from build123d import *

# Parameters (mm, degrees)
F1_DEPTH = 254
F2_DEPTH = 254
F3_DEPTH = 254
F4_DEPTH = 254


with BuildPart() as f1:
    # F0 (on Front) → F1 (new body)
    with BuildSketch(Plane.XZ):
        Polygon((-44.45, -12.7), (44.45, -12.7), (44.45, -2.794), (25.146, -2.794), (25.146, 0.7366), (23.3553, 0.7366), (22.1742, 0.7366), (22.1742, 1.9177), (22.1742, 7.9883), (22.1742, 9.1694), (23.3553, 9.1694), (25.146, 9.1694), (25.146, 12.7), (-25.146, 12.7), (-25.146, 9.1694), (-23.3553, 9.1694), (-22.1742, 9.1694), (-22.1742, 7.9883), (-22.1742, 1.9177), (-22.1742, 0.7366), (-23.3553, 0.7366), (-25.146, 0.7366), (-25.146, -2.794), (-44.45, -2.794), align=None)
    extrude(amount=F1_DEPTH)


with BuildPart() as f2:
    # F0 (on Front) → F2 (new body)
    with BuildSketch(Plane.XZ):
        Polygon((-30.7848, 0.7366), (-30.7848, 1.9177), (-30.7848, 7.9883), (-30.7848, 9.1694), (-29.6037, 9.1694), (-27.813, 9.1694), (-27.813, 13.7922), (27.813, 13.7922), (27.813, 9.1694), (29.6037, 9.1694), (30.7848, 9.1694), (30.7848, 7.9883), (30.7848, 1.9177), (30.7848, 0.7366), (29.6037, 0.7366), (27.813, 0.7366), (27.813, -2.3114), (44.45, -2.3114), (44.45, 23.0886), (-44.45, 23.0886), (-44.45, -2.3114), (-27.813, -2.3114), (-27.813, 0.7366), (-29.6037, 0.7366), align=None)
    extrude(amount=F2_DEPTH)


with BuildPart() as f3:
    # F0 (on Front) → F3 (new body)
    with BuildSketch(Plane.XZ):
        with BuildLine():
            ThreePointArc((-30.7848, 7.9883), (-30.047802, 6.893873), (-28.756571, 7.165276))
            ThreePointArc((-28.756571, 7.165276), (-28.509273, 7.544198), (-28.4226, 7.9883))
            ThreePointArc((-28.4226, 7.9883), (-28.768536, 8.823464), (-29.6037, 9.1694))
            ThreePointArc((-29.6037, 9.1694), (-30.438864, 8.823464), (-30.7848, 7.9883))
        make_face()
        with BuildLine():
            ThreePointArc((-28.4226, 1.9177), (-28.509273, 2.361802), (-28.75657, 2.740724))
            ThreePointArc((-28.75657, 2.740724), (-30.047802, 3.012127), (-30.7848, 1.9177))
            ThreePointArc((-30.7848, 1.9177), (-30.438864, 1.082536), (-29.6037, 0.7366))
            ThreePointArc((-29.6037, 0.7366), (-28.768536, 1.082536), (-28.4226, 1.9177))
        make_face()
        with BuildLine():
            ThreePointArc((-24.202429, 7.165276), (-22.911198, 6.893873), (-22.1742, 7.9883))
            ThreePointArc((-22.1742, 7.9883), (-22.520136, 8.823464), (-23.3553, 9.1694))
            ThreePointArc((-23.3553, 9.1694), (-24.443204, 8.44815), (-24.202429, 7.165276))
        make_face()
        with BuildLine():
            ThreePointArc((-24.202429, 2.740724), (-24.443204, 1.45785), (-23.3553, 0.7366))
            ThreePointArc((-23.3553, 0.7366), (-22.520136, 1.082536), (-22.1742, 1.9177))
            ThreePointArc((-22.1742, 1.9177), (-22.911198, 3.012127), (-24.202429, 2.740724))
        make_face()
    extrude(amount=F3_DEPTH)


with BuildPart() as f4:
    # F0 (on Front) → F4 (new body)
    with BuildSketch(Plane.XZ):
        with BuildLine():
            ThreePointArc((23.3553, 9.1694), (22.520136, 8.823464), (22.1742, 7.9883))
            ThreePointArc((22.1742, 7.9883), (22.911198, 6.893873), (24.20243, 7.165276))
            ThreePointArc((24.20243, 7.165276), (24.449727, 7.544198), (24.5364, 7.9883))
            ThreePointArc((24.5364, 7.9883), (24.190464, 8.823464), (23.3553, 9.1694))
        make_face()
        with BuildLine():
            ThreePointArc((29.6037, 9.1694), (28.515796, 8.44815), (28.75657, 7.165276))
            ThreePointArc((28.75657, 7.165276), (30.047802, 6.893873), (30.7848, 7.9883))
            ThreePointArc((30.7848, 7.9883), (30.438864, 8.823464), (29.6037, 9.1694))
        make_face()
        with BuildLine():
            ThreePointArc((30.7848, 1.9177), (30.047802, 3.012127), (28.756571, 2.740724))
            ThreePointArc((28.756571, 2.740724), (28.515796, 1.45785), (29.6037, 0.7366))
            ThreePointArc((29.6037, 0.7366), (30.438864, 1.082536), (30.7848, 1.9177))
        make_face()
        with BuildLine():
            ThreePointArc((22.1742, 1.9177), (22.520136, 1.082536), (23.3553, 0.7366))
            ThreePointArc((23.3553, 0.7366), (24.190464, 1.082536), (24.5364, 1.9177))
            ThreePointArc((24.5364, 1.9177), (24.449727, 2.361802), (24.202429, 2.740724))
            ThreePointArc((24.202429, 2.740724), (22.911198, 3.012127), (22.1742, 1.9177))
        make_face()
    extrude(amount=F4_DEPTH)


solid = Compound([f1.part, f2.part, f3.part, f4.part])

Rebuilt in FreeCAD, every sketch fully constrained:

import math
import FreeCAD as App
import Part
import Sketcher

V = App.Vector
Q = App.Units.Quantity

doc = App.newDocument("Part")
body = doc.addObject("PartDesign::Body", "Body")

sketch1 = doc.addObject("Sketcher::SketchObject", "Sketch")
body.addObject(sketch1)
sketch1.AttachmentSupport = (doc.XZ_Plane, [""])
sketch1.MapMode = "FlatFace"
sketch1.addGeometry(Part.LineSegment(V(-44.5, -12.7, 0), V(44.5, -12.7, 0)), False)
sketch1.addGeometry(Part.LineSegment(V(44.5, -12.7, 0), V(44.5, -2.8, 0)), False)
sketch1.addGeometry(Part.LineSegment(V(44.5, -2.8, 0), V(25.1, -2.8, 0)), False)
sketch1.addGeometry(Part.LineSegment(V(25.1, -2.8, 0), V(25.1, 0.7, 0)), False)
sketch1.addGeometry(Part.LineSegment(V(25.1, 0.7, 0), V(22.2, 0.7, 0)), False)
sketch1.addGeometry(Part.LineSegment(V(22.2, 0.7, 0), V(22.2, 9.2, 0)), False)
sketch1.addGeometry(Part.LineSegment(V(22.2, 9.2, 0), V(25.1, 9.2, 0)), False)
sketch1.addGeometry(Part.LineSegment(V(25.1, 9.2, 0), V(25.1, 12.7, 0)), False)
sketch1.addGeometry(Part.LineSegment(V(25.1, 12.7, 0), V(-25.1, 12.7, 0)), False)
sketch1.addGeometry(Part.LineSegment(V(-25.1, 12.7, 0), V(-25.1, 9.2, 0)), False)
sketch1.addGeometry(Part.LineSegment(V(-25.1, 9.2, 0), V(-22.2, 9.2, 0)), False)
sketch1.addGeometry(Part.LineSegment(V(-22.2, 9.2, 0), V(-22.2, 0.7, 0)), False)
sketch1.addGeometry(Part.LineSegment(V(-22.2, 0.7, 0), V(-25.1, 0.7, 0)), False)
sketch1.addGeometry(Part.LineSegment(V(-25.1, 0.7, 0), V(-25.1, -2.8, 0)), False)
sketch1.addGeometry(Part.LineSegment(V(-25.1, -2.8, 0), V(-44.5, -2.8, 0)), False)
sketch1.addGeometry(Part.LineSegment(V(-44.5, -2.8, 0), V(-44.5, -12.7, 0)), False)
sketch1.addConstraint(Sketcher.Constraint("Coincident", 0, 2, 1, 1))
sketch1.addConstraint(Sketcher.Constraint("Coincident", 1, 2, 2, 1))
sketch1.addConstraint(Sketcher.Constraint("Coincident", 2, 2, 3, 1))
sketch1.addConstraint(Sketcher.Constraint("Coincident", 3, 2, 4, 1))
sketch1.addConstraint(Sketcher.Constraint("Coincident", 4, 2, 5, 1))
sketch1.addConstraint(Sketcher.Constraint("Coincident", 5, 2, 6, 1))
sketch1.addConstraint(Sketcher.Constraint("Coincident", 6, 2, 7, 1))
sketch1.addConstraint(Sketcher.Constraint("Coincident", 7, 2, 8, 1))
sketch1.addConstraint(Sketcher.Constraint("Coincident", 8, 2, 9, 1))
sketch1.addConstraint(Sketcher.Constraint("Coincident", 9, 2, 10, 1))
sketch1.addConstraint(Sketcher.Constraint("Coincident", 10, 2, 11, 1))
sketch1.addConstraint(Sketcher.Constraint("Coincident", 11, 2, 12, 1))
sketch1.addConstraint(Sketcher.Constraint("Coincident", 12, 2, 13, 1))
sketch1.addConstraint(Sketcher.Constraint("Coincident", 13, 2, 14, 1))
sketch1.addConstraint(Sketcher.Constraint("Coincident", 14, 2, 15, 1))
sketch1.addConstraint(Sketcher.Constraint("Coincident", 15, 2, 0, 1))
sketch1.addConstraint(Sketcher.Constraint("Horizontal", 0))
sketch1.addConstraint(Sketcher.Constraint("Vertical", 1))
sketch1.addConstraint(Sketcher.Constraint("Horizontal", 2))
sketch1.addConstraint(Sketcher.Constraint("Vertical", 3))
sketch1.addConstraint(Sketcher.Constraint("Horizontal", 4))
sketch1.addConstraint(Sketcher.Constraint("Vertical", 5))
sketch1.addConstraint(Sketcher.Constraint("Horizontal", 6))
sketch1.addConstraint(Sketcher.Constraint("Vertical", 7))
sketch1.addConstraint(Sketcher.Constraint("Horizontal", 8))
sketch1.addConstraint(Sketcher.Constraint("Vertical", 9))
sketch1.addConstraint(Sketcher.Constraint("Horizontal", 10))
sketch1.addConstraint(Sketcher.Constraint("Vertical", 11))
sketch1.addConstraint(Sketcher.Constraint("Horizontal", 12))
sketch1.addConstraint(Sketcher.Constraint("Vertical", 13))
sketch1.addConstraint(Sketcher.Constraint("Horizontal", 14))
sketch1.addConstraint(Sketcher.Constraint("Vertical", 15))
sketch1.addConstraint(Sketcher.Constraint("Symmetric", 6, 2, 9, 2, -2))
sketch1.addConstraint(Sketcher.Constraint("Symmetric", 4, 2, 11, 2, -2))
sketch1.addConstraint(Sketcher.Constraint("Symmetric", 2, 2, 13, 2, -2))
sketch1.addConstraint(Sketcher.Constraint("Vertical", 3, 2, 6, 2))
sketch1.addConstraint(Sketcher.Constraint("Equal", 2, 14))
sketch1.addConstraint(Sketcher.Constraint("Equal", 3, 7))
sketch1.addConstraint(Sketcher.Constraint("DistanceX", 0, 1, 0, 2, Q("3.5 in")))
sketch1.addConstraint(Sketcher.Constraint("DistanceX", 2, 2, 2, 1, Q("0.76 in")))
sketch1.addConstraint(Sketcher.Constraint("DistanceY", 1, 1, 1, 2, Q("0.39 in")))
sketch1.addConstraint(Sketcher.Constraint("DistanceY", 0, 2, -1, 1, Q("0.5 in")))
sketch1.addConstraint(Sketcher.Constraint("DistanceY", -1, 1, 7, 2, Q("0.5 in")))
sketch1.addConstraint(Sketcher.Constraint("DistanceX", 4, 2, 4, 1, Q("0.117 in")))
sketch1.addConstraint(Sketcher.Constraint("DistanceY", 3, 1, 3, 2, Q("0.139 in")))
pad1 = doc.addObject("PartDesign::Pad", "Pad")
body.addObject(pad1)
pad1.Profile = sketch1
pad1.Length = Q("10 in")
body2 = doc.addObject("PartDesign::Body", "Body001")

sketch2 = doc.addObject("Sketcher::SketchObject", "Sketch001")
body2.addObject(sketch2)
sketch2.AttachmentSupport = (doc.getObject("XZ_Plane001"), [""])
sketch2.MapMode = "FlatFace"
sketch2.addGeometry(Part.LineSegment(V(-30.8, 0.7, 0), V(-30.8, 9.2, 0)), False)
sketch2.addGeometry(Part.LineSegment(V(-30.8, 9.2, 0), V(-27.8, 9.2, 0)), False)
sketch2.addGeometry(Part.LineSegment(V(-27.8, 9.2, 0), V(-27.8, 13.8, 0)), False)
sketch2.addGeometry(Part.LineSegment(V(-27.8, 13.8, 0), V(27.8, 13.8, 0)), False)
sketch2.addGeometry(Part.LineSegment(V(27.8, 13.8, 0), V(27.8, 9.2, 0)), False)
sketch2.addGeometry(Part.LineSegment(V(27.8, 9.2, 0), V(30.8, 9.2, 0)), False)
sketch2.addGeometry(Part.LineSegment(V(30.8, 9.2, 0), V(30.8, 0.7, 0)), False)
sketch2.addGeometry(Part.LineSegment(V(30.8, 0.7, 0), V(27.8, 0.7, 0)), False)
sketch2.addGeometry(Part.LineSegment(V(27.8, 0.7, 0), V(27.8, -2.3, 0)), False)
sketch2.addGeometry(Part.LineSegment(V(27.8, -2.3, 0), V(44.5, -2.3, 0)), False)
sketch2.addGeometry(Part.LineSegment(V(44.5, -2.3, 0), V(44.5, 23.1, 0)), False)
sketch2.addGeometry(Part.LineSegment(V(44.5, 23.1, 0), V(-44.5, 23.1, 0)), False)
sketch2.addGeometry(Part.LineSegment(V(-44.5, 23.1, 0), V(-44.5, -2.3, 0)), False)
sketch2.addGeometry(Part.LineSegment(V(-44.5, -2.3, 0), V(-27.8, -2.3, 0)), False)
sketch2.addGeometry(Part.LineSegment(V(-27.8, -2.3, 0), V(-27.8, 0.7, 0)), False)
sketch2.addGeometry(Part.LineSegment(V(-27.8, 0.7, 0), V(-30.8, 0.7, 0)), False)
sketch2.addConstraint(Sketcher.Constraint("Coincident", 0, 2, 1, 1))
sketch2.addConstraint(Sketcher.Constraint("Coincident", 1, 2, 2, 1))
sketch2.addConstraint(Sketcher.Constraint("Coincident", 2, 2, 3, 1))
sketch2.addConstraint(Sketcher.Constraint("Coincident", 3, 2, 4, 1))
sketch2.addConstraint(Sketcher.Constraint("Coincident", 4, 2, 5, 1))
sketch2.addConstraint(Sketcher.Constraint("Coincident", 5, 2, 6, 1))
sketch2.addConstraint(Sketcher.Constraint("Coincident", 6, 2, 7, 1))
sketch2.addConstraint(Sketcher.Constraint("Coincident", 7, 2, 8, 1))
sketch2.addConstraint(Sketcher.Constraint("Coincident", 8, 2, 9, 1))
sketch2.addConstraint(Sketcher.Constraint("Coincident", 9, 2, 10, 1))
sketch2.addConstraint(Sketcher.Constraint("Coincident", 10, 2, 11, 1))
sketch2.addConstraint(Sketcher.Constraint("Coincident", 11, 2, 12, 1))
sketch2.addConstraint(Sketcher.Constraint("Coincident", 12, 2, 13, 1))
sketch2.addConstraint(Sketcher.Constraint("Coincident", 13, 2, 14, 1))
sketch2.addConstraint(Sketcher.Constraint("Coincident", 14, 2, 15, 1))
sketch2.addConstraint(Sketcher.Constraint("Coincident", 15, 2, 0, 1))
sketch2.addConstraint(Sketcher.Constraint("Vertical", 0))
sketch2.addConstraint(Sketcher.Constraint("Horizontal", 1))
sketch2.addConstraint(Sketcher.Constraint("Vertical", 2))
sketch2.addConstraint(Sketcher.Constraint("Horizontal", 3))
sketch2.addConstraint(Sketcher.Constraint("Vertical", 4))
sketch2.addConstraint(Sketcher.Constraint("Horizontal", 5))
sketch2.addConstraint(Sketcher.Constraint("Vertical", 6))
sketch2.addConstraint(Sketcher.Constraint("Horizontal", 7))
sketch2.addConstraint(Sketcher.Constraint("Vertical", 8))
sketch2.addConstraint(Sketcher.Constraint("Horizontal", 9))
sketch2.addConstraint(Sketcher.Constraint("Vertical", 10))
sketch2.addConstraint(Sketcher.Constraint("Horizontal", 11))
sketch2.addConstraint(Sketcher.Constraint("Vertical", 12))
sketch2.addConstraint(Sketcher.Constraint("Horizontal", 13))
sketch2.addConstraint(Sketcher.Constraint("Vertical", 14))
sketch2.addConstraint(Sketcher.Constraint("Horizontal", 15))
sketch2.addConstraint(Sketcher.Constraint("Symmetric", 1, 2, 4, 2, -2))
sketch2.addConstraint(Sketcher.Constraint("Symmetric", 9, 2, 12, 2, -2))
sketch2.addConstraint(Sketcher.Constraint("Symmetric", 7, 2, 14, 2, -2))
sketch2.addConstraint(Sketcher.Constraint("Vertical", 4, 2, 7, 2))
sketch2.addConstraint(Sketcher.Constraint("Equal", 1, 5))
sketch2.addConstraint(Sketcher.Constraint("DistanceY", 10, 1, 10, 2, Q("1 in")))
sketch2.addConstraint(Sketcher.Constraint("DistanceX", 11, 2, 11, 1, Q("3.5 in")))
sketch2.addConstraint(Sketcher.Constraint("DistanceX", 3, 1, 3, 2, Q("2.19 in")))
sketch2.addConstraint(Sketcher.Constraint("DistanceY", 8, 2, 8, 1, Q("0.12 in")))
sketch2.addConstraint(Sketcher.Constraint("DistanceX", 1, 1, 1, 2, Q("0.117 in")))
sketch2.addConstraint(Sketcher.Constraint("DistanceY", 0, 1, 0, 2, Q("0.332 in")))
sketch2.addConstraint(Sketcher.Constraint("DistanceY", 2, 1, 2, 2, Q("0.182 in")))
sketch2.addConstraint(Sketcher.Constraint("DistanceY", -1, 1, 0, 2, Q("0.361 in")))
pad2 = doc.addObject("PartDesign::Pad", "Pad001")
body2.addObject(pad2)
pad2.Profile = sketch2
pad2.Length = Q("10 in")
body3 = doc.addObject("PartDesign::Body", "Body002")
body3.AllowCompound = True

sketch3 = doc.addObject("Sketcher::SketchObject", "Sketch002")
body3.addObject(sketch3)
sketch3.AttachmentSupport = (doc.getObject("XZ_Plane002"), [""])
sketch3.MapMode = "FlatFace"
sketch3.addGeometry(Part.ArcOfCircle(Part.Circle(V(-29.6, 8, 0), V(0, 0, 1), 1.2), math.radians(180), math.radians(316)), False)
sketch3.addGeometry(Part.ArcOfCircle(Part.Circle(V(-29.6, 8, 0), V(0, 0, 1), 1.2), math.radians(-44), math.radians(0)), False)
sketch3.addGeometry(Part.ArcOfCircle(Part.Circle(V(-29.6, 8, 0), V(0, 0, 1), 1.2), math.radians(0), math.radians(90)), False)
sketch3.addGeometry(Part.ArcOfCircle(Part.Circle(V(-29.6, 8, 0), V(0, 0, 1), 1.2), math.radians(90), math.radians(180)), False)
sketch3.addGeometry(Part.ArcOfCircle(Part.Circle(V(-29.6, 1.9, 0), V(0, 0, 1), 1.2), math.radians(0), math.radians(44)), False)
sketch3.addGeometry(Part.ArcOfCircle(Part.Circle(V(-29.6, 1.9, 0), V(0, 0, 1), 1.2), math.radians(44), math.radians(180)), False)
sketch3.addGeometry(Part.ArcOfCircle(Part.Circle(V(-29.6, 1.9, 0), V(0, 0, 1), 1.2), math.radians(180), math.radians(270)), False)
sketch3.addGeometry(Part.ArcOfCircle(Part.Circle(V(-29.6, 1.9, 0), V(0, 0, 1), 1.2), math.radians(-90), math.radians(0)), False)
sketch3.addGeometry(Part.ArcOfCircle(Part.Circle(V(-23.4, 8, 0), V(0, 0, 1), 1.2), math.radians(-136), math.radians(0)), False)
sketch3.addGeometry(Part.ArcOfCircle(Part.Circle(V(-23.4, 8, 0), V(0, 0, 1), 1.2), math.radians(0), math.radians(90)), False)
sketch3.addGeometry(Part.ArcOfCircle(Part.Circle(V(-23.4, 8, 0), V(0, 0, 1), 1.2), math.radians(90), math.radians(224)), False)
sketch3.addGeometry(Part.ArcOfCircle(Part.Circle(V(-23.4, 1.9, 0), V(0, 0, 1), 1.2), math.radians(136), math.radians(270)), False)
sketch3.addGeometry(Part.ArcOfCircle(Part.Circle(V(-23.4, 1.9, 0), V(0, 0, 1), 1.2), math.radians(-90), math.radians(0)), False)
sketch3.addGeometry(Part.ArcOfCircle(Part.Circle(V(-23.4, 1.9, 0), V(0, 0, 1), 1.2), math.radians(0), math.radians(136)), False)
sketch3.addConstraint(Sketcher.Constraint("Tangent", 0, 2, 1, 1))
sketch3.addConstraint(Sketcher.Constraint("Tangent", 1, 2, 2, 1))
sketch3.addConstraint(Sketcher.Constraint("Tangent", 2, 2, 3, 1))
sketch3.addConstraint(Sketcher.Constraint("Tangent", 3, 2, 0, 1))
sketch3.addConstraint(Sketcher.Constraint("Tangent", 4, 2, 5, 1))
sketch3.addConstraint(Sketcher.Constraint("Tangent", 5, 2, 6, 1))
sketch3.addConstraint(Sketcher.Constraint("Tangent", 6, 2, 7, 1))
sketch3.addConstraint(Sketcher.Constraint("Tangent", 7, 2, 4, 1))
sketch3.addConstraint(Sketcher.Constraint("Tangent", 8, 2, 9, 1))
sketch3.addConstraint(Sketcher.Constraint("Tangent", 9, 2, 10, 1))
sketch3.addConstraint(Sketcher.Constraint("Tangent", 10, 2, 8, 1))
sketch3.addConstraint(Sketcher.Constraint("Tangent", 11, 2, 12, 1))
sketch3.addConstraint(Sketcher.Constraint("Tangent", 12, 2, 13, 1))
sketch3.addConstraint(Sketcher.Constraint("Tangent", 13, 2, 11, 1))
sketch3.addConstraint(Sketcher.Constraint("Equal", 1, 2))
sketch3.addConstraint(Sketcher.Constraint("Equal", 3, 5))
sketch3.addConstraint(Sketcher.Constraint("Equal", 5, 6))
sketch3.addConstraint(Sketcher.Constraint("Equal", 7, 8))
sketch3.addConstraint(Sketcher.Constraint("Equal", 10, 11))
sketch3.addConstraint(Sketcher.Constraint("Horizontal", 3, 3, 8, 3))
sketch3.addConstraint(Sketcher.Constraint("Horizontal", 7, 3, 11, 3))
sketch3.addConstraint(Sketcher.Constraint("Horizontal", 10, 3, 1, 2))
sketch3.addConstraint(Sketcher.Constraint("Horizontal", 1, 2, 3, 2))
sketch3.addConstraint(Sketcher.Constraint("Horizontal", 13, 3, 5, 2))
sketch3.addConstraint(Sketcher.Constraint("Horizontal", 5, 2, 7, 2))
sketch3.addConstraint(Sketcher.Constraint("Horizontal", 3, 2, 8, 2))
sketch3.addConstraint(Sketcher.Constraint("Horizontal", 0, 2, 10, 2))
sketch3.addConstraint(Sketcher.Constraint("Horizontal", 7, 2, 12, 2))
sketch3.addConstraint(Sketcher.Constraint("Horizontal", 4, 2, 13, 2))
sketch3.addConstraint(Sketcher.Constraint("Vertical", 3, 3, 4, 3))
sketch3.addConstraint(Sketcher.Constraint("Vertical", 10, 3, 11, 3))
sketch3.addConstraint(Sketcher.Constraint("Vertical", 7, 3, 2, 2))
sketch3.addConstraint(Sketcher.Constraint("Vertical", 0, 2, 4, 2))
sketch3.addConstraint(Sketcher.Constraint("Vertical", 2, 2, 6, 2))
sketch3.addConstraint(Sketcher.Constraint("Vertical", 13, 3, 9, 2))
sketch3.addConstraint(Sketcher.Constraint("Vertical", 9, 2, 11, 2))
sketch3.addConstraint(Sketcher.Constraint("Radius", 0, Q("0.0465 in")))
sketch3.addConstraint(Sketcher.Constraint("DistanceX", 1, 2, -1, 1, Q("1.119 in")))
sketch3.addConstraint(Sketcher.Constraint("DistanceY", -1, 1, 2, 2, Q("0.361 in")))
sketch3.addConstraint(Sketcher.Constraint("DistanceY", -1, 1, 6, 2, Q("0.029 in")))
sketch3.addConstraint(Sketcher.Constraint("DistanceX", 8, 2, -1, 1, Q("0.873 in")))
sketch3.addConstraint(Sketcher.Constraint("DistanceX", 0, 2, -1, 1, Q("28.756571 mm")))
pad3 = doc.addObject("PartDesign::Pad", "Pad002")
body3.addObject(pad3)
pad3.Profile = sketch3
pad3.Length = Q("10 in")
body4 = doc.addObject("PartDesign::Body", "Body003")
body4.AllowCompound = True

sketch4 = doc.addObject("Sketcher::SketchObject", "Sketch003")
body4.addObject(sketch4)
sketch4.AttachmentSupport = (doc.getObject("XZ_Plane003"), [""])
sketch4.MapMode = "FlatFace"
sketch4.addGeometry(Part.ArcOfCircle(Part.Circle(V(23.4, 8, 0), V(0, 0, 1), 1.2), math.radians(90), math.radians(180)), False)
sketch4.addGeometry(Part.ArcOfCircle(Part.Circle(V(23.4, 8, 0), V(0, 0, 1), 1.2), math.radians(-180), math.radians(-44)), False)
sketch4.addGeometry(Part.ArcOfCircle(Part.Circle(V(23.4, 8, 0), V(0, 0, 1), 1.2), math.radians(-44), math.radians(0)), False)
sketch4.addGeometry(Part.ArcOfCircle(Part.Circle(V(23.4, 8, 0), V(0, 0, 1), 1.2), math.radians(0), math.radians(90)), False)
sketch4.addGeometry(Part.ArcOfCircle(Part.Circle(V(29.6, 8, 0), V(0, 0, 1), 1.2), math.radians(90), math.radians(224)), False)
sketch4.addGeometry(Part.ArcOfCircle(Part.Circle(V(29.6, 8, 0), V(0, 0, 1), 1.2), math.radians(-136), math.radians(0)), False)
sketch4.addGeometry(Part.ArcOfCircle(Part.Circle(V(29.6, 8, 0), V(0, 0, 1), 1.2), math.radians(0), math.radians(90)), False)
sketch4.addGeometry(Part.ArcOfCircle(Part.Circle(V(29.6, 1.9, 0), V(0, 0, 1), 1.2), math.radians(0), math.radians(136)), False)
sketch4.addGeometry(Part.ArcOfCircle(Part.Circle(V(29.6, 1.9, 0), V(0, 0, 1), 1.2), math.radians(136), math.radians(270)), False)
sketch4.addGeometry(Part.ArcOfCircle(Part.Circle(V(29.6, 1.9, 0), V(0, 0, 1), 1.2), math.radians(-90), math.radians(0)), False)
sketch4.addGeometry(Part.ArcOfCircle(Part.Circle(V(23.4, 1.9, 0), V(0, 0, 1), 1.2), math.radians(180), math.radians(270)), False)
sketch4.addGeometry(Part.ArcOfCircle(Part.Circle(V(23.4, 1.9, 0), V(0, 0, 1), 1.2), math.radians(-90), math.radians(0)), False)
sketch4.addGeometry(Part.ArcOfCircle(Part.Circle(V(23.4, 1.9, 0), V(0, 0, 1), 1.2), math.radians(0), math.radians(44)), False)
sketch4.addGeometry(Part.ArcOfCircle(Part.Circle(V(23.4, 1.9, 0), V(0, 0, 1), 1.2), math.radians(44), math.radians(180)), False)
sketch4.addConstraint(Sketcher.Constraint("Tangent", 0, 2, 1, 1))
sketch4.addConstraint(Sketcher.Constraint("Tangent", 1, 2, 2, 1))
sketch4.addConstraint(Sketcher.Constraint("Tangent", 2, 2, 3, 1))
sketch4.addConstraint(Sketcher.Constraint("Tangent", 3, 2, 0, 1))
sketch4.addConstraint(Sketcher.Constraint("Tangent", 4, 2, 5, 1))
sketch4.addConstraint(Sketcher.Constraint("Tangent", 5, 2, 6, 1))
sketch4.addConstraint(Sketcher.Constraint("Tangent", 6, 2, 4, 1))
sketch4.addConstraint(Sketcher.Constraint("Tangent", 7, 2, 8, 1))
sketch4.addConstraint(Sketcher.Constraint("Tangent", 8, 2, 9, 1))
sketch4.addConstraint(Sketcher.Constraint("Tangent", 9, 2, 7, 1))
sketch4.addConstraint(Sketcher.Constraint("Tangent", 10, 2, 11, 1))
sketch4.addConstraint(Sketcher.Constraint("Tangent", 11, 2, 12, 1))
sketch4.addConstraint(Sketcher.Constraint("Tangent", 12, 2, 13, 1))
sketch4.addConstraint(Sketcher.Constraint("Tangent", 13, 2, 10, 1))
sketch4.addConstraint(Sketcher.Constraint("Equal", 0, 1))
sketch4.addConstraint(Sketcher.Constraint("Equal", 3, 4))
sketch4.addConstraint(Sketcher.Constraint("Equal", 6, 7))
sketch4.addConstraint(Sketcher.Constraint("Equal", 9, 10))
sketch4.addConstraint(Sketcher.Constraint("Equal", 10, 11))
sketch4.addConstraint(Sketcher.Constraint("Horizontal", 3, 3, 4, 3))
sketch4.addConstraint(Sketcher.Constraint("Horizontal", 9, 3, 10, 3))
sketch4.addConstraint(Sketcher.Constraint("Horizontal", 6, 3, 0, 2))
sketch4.addConstraint(Sketcher.Constraint("Horizontal", 0, 2, 2, 2))
sketch4.addConstraint(Sketcher.Constraint("Horizontal", 1, 2, 4, 2))
sketch4.addConstraint(Sketcher.Constraint("Horizontal", 2, 2, 5, 2))
sketch4.addConstraint(Sketcher.Constraint("Horizontal", 13, 3, 9, 2))
sketch4.addConstraint(Sketcher.Constraint("Horizontal", 9, 2, 11, 2))
sketch4.addConstraint(Sketcher.Constraint("Horizontal", 7, 2, 12, 2))
sketch4.addConstraint(Sketcher.Constraint("Horizontal", 11, 2, 13, 2))
sketch4.addConstraint(Sketcher.Constraint("Vertical", 6, 3, 7, 3))
sketch4.addConstraint(Sketcher.Constraint("Vertical", 3, 3, 10, 3))
sketch4.addConstraint(Sketcher.Constraint("Vertical", 13, 3, 3, 2))
sketch4.addConstraint(Sketcher.Constraint("Vertical", 9, 3, 6, 2))
sketch4.addConstraint(Sketcher.Constraint("Vertical", 4, 2, 7, 2))
sketch4.addConstraint(Sketcher.Constraint("Vertical", 6, 2, 8, 2))
sketch4.addConstraint(Sketcher.Constraint("Vertical", 3, 2, 10, 2))
sketch4.addConstraint(Sketcher.Constraint("Radius", 0, Q("0.0465 in")))
sketch4.addConstraint(Sketcher.Constraint("DistanceX", -1, 1, 0, 2, Q("0.873 in")))
sketch4.addConstraint(Sketcher.Constraint("DistanceY", -1, 1, 3, 2, Q("0.361 in")))
sketch4.addConstraint(Sketcher.Constraint("DistanceX", -1, 1, 5, 2, Q("1.212 in")))
sketch4.addConstraint(Sketcher.Constraint("DistanceY", -1, 1, 8, 2, Q("0.029 in")))
sketch4.addConstraint(Sketcher.Constraint("DistanceX", -1, 1, 1, 2, Q("24.20243 mm")))
pad4 = doc.addObject("PartDesign::Pad", "Pad003")
body4.addObject(pad4)
pad4.Profile = sketch4
pad4.Length = Q("10 in")

doc.recompute()
